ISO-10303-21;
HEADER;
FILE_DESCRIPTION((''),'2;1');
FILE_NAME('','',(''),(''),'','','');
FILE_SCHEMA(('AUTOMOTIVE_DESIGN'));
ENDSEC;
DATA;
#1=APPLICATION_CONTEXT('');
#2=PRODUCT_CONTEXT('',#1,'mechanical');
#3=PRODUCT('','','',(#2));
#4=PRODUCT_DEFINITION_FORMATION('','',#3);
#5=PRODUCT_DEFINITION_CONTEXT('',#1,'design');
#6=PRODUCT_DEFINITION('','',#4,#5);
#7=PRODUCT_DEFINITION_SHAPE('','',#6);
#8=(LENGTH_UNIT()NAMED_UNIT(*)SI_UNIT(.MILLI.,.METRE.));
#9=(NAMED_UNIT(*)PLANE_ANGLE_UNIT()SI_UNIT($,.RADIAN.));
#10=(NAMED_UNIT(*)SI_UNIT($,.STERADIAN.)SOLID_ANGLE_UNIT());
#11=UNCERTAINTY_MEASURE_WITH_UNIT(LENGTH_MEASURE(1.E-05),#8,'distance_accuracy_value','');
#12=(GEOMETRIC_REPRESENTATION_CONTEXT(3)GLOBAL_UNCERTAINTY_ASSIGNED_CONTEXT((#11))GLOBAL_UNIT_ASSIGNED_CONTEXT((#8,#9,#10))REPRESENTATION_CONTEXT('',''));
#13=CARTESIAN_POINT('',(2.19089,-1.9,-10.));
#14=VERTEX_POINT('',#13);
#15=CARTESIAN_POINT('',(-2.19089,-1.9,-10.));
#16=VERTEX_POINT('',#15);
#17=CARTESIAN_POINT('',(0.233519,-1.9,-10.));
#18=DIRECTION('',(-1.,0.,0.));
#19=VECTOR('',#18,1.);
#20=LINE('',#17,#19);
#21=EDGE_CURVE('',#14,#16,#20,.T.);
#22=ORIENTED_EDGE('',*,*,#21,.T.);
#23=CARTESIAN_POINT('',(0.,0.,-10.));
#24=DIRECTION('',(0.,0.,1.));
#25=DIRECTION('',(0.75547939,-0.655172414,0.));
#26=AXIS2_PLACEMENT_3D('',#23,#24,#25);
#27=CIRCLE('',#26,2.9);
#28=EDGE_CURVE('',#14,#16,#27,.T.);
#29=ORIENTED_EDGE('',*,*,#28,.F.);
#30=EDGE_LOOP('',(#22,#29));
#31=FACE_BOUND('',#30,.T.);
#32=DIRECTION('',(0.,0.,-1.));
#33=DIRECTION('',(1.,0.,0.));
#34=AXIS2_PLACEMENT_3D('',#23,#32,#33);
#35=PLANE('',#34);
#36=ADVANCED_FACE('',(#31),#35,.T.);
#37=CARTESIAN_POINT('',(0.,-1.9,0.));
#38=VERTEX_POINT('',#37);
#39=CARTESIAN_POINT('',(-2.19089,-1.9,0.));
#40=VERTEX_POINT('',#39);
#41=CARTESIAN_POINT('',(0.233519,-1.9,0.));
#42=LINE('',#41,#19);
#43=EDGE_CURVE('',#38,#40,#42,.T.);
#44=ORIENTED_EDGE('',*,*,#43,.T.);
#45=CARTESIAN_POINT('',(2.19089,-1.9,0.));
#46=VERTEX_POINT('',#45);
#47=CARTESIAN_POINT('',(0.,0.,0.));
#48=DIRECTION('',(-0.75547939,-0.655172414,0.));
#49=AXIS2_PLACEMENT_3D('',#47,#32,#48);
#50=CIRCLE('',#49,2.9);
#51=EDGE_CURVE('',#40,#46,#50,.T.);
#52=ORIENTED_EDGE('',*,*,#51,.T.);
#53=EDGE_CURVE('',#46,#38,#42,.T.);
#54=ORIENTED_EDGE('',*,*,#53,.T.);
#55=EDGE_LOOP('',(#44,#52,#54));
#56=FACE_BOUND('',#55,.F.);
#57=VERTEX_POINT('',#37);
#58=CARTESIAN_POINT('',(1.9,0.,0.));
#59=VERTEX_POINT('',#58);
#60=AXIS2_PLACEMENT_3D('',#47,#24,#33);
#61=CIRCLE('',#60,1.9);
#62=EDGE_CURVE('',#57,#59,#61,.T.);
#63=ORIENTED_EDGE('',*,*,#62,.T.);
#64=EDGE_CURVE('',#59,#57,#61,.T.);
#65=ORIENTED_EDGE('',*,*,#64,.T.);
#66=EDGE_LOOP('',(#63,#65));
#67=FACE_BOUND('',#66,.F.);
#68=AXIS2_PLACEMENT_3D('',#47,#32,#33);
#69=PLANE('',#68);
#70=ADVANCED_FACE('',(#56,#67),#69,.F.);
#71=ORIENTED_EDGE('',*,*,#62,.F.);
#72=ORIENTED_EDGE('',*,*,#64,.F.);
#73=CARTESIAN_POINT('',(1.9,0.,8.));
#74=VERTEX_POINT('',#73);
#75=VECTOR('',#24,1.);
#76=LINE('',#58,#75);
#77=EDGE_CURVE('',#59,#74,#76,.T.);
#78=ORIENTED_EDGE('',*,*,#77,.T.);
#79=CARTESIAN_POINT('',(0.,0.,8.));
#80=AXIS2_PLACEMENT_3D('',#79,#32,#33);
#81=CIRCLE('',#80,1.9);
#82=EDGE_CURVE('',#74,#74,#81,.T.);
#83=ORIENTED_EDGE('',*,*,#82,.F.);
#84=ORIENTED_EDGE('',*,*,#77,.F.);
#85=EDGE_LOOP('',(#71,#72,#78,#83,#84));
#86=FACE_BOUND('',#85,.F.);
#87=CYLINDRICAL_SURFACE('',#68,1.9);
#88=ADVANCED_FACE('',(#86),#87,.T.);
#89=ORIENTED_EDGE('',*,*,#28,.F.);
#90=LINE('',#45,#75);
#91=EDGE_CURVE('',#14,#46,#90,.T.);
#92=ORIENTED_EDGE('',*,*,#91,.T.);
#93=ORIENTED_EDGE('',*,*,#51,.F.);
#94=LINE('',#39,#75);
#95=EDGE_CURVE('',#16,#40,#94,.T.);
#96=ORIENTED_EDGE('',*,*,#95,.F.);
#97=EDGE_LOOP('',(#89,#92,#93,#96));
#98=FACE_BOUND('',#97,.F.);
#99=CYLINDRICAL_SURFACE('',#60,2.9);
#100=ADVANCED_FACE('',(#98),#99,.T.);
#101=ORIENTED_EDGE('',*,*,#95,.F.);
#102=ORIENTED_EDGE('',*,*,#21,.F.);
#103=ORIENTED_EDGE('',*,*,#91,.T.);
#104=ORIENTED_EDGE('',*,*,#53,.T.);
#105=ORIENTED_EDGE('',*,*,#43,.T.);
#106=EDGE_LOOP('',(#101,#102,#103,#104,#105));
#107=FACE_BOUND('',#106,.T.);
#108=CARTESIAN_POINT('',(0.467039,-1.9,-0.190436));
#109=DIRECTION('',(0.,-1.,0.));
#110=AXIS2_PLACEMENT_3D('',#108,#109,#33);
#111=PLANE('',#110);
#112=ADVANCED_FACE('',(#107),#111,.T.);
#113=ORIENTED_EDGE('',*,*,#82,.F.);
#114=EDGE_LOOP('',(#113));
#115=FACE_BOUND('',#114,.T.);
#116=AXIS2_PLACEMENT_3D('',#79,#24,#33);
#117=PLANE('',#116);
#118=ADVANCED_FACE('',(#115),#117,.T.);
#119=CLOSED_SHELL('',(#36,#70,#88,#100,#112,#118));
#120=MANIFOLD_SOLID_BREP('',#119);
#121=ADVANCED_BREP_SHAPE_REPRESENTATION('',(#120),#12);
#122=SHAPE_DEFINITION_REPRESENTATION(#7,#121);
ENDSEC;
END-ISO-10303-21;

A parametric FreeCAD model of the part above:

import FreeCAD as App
import Part
import Sketcher
from FreeCAD import Vector
Q = App.Units.Quantity

doc = App.newDocument("Part")
body = doc.addObject("PartDesign::Body", "Body")

sketch1 = body.newObject("Sketcher::SketchObject", "Sketch")
sketch1.AttachmentSupport = (doc.getObject("XY_Plane"), [""])
sketch1.MapMode = "FlatFace"
sketch1.addGeometry(Part.Circle(Vector(0, 0, 0), Vector(0, 0, 1), 1.9), False)
sketch1.addConstraint([
    Sketcher.Constraint("Coincident", 0, 3, -1, 1),
    Sketcher.Constraint("Diameter", 0, Q("3.8 mm")),
])
pad1 = body.newObject("PartDesign::Pad", "Pad")
pad1.Profile = sketch1
pad1.Length = 8

sketch2 = body.newObject("Sketcher::SketchObject", "Sketch001")
sketch2.AttachmentSupport = (doc.getObject("XY_Plane"), [""])
sketch2.MapMode = "FlatFace"
sketch2.addGeometry(Part.Circle(Vector(0, 0, 0), Vector(0, 0, 1), 2.9), False)
sketch2.addConstraint([
    Sketcher.Constraint("Coincident", 0, 3, -1, 1),
    Sketcher.Constraint("Diameter", 0, Q("5.8 mm")),
])
pad2 = body.newObject("PartDesign::Pad", "Pad001")
pad2.Profile = sketch2
pad2.Length = 10
pad2.Reversed = True

sketch3 = body.newObject("Sketcher::SketchObject", "Sketch002")
sketch3.AttachmentSupport = (doc.getObject("XZ_Plane"), [""])
sketch3.MapMode = "FlatFace"
sketch3.AttachmentOffset = App.Placement(Vector(0, 0, 1.9), App.Rotation())
sketch3.addGeometry([
    Part.LineSegment(Vector(-8.927537, 15.819419, 0), Vector(-8.927537, -16.200291, 0)),
    Part.LineSegment(Vector(-8.927537, -16.200291, 0), Vector(9.861614, -16.200291, 0)),
    Part.LineSegment(Vector(9.861614, -16.200291, 0), Vector(9.861614, 15.819419, 0)),
    Part.LineSegment(Vector(9.861614, 15.819419, 0), Vector(-8.927537, 15.819419, 0)),
], False)
sketch3.addConstraint([
    Sketcher.Constraint("Coincident", 0, 2, 1, 1),
    Sketcher.Constraint("Coincident", 1, 2, 2, 1),
    Sketcher.Constraint("Coincident", 2, 2, 3, 1),
    Sketcher.Constraint("Coincident", 3, 2, 0, 1),
    Sketcher.Constraint("Vertical", 0),
    Sketcher.Constraint("Horizontal", 1),
    Sketcher.Constraint("Vertical", 2),
    Sketcher.Constraint("Horizontal", 3),
    Sketcher.Constraint("DistanceX", 1, 1, 1, 2, Q("18.789151 mm")),
    Sketcher.Constraint("DistanceY", 0, 2, 0, 1, Q("32.01971 mm")),
    Sketcher.Constraint("DistanceY", 0, 2, -1, 1, Q("16.200291 mm")),
    Sketcher.Constraint("DistanceX", 0, 2, -1, 1, Q("8.927537 mm")),
])
pocket1 = body.newObject("PartDesign::Pocket", "Pocket")
pocket1.Profile = sketch3
pocket1.Length = 25
pocket1.Reversed = True

doc.recompute()
